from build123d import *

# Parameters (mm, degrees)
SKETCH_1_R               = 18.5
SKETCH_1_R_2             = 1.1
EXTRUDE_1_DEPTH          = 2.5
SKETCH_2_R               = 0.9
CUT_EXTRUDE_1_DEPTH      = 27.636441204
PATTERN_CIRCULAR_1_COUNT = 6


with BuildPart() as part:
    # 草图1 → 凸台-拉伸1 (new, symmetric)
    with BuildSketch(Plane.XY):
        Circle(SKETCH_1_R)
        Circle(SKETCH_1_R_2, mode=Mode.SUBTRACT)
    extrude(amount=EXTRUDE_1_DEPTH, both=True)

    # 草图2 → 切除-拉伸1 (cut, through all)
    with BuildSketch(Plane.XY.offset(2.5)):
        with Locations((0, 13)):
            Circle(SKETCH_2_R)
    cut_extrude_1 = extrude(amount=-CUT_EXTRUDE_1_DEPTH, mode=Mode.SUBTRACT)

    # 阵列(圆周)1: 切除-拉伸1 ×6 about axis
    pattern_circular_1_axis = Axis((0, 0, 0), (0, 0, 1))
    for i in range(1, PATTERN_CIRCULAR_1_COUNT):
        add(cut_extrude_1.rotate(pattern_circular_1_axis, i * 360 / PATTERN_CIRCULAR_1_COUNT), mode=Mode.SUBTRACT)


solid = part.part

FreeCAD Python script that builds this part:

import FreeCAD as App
import Part
import Sketcher

doc = App.newDocument("Part")
params = doc.addObject("Spreadsheet::Sheet", "Params")
for row, (alias, value) in enumerate([
    ("sketch1_diameter", "37 mm"),
    ("sketch1_diameter2", "2.2 mm"),
    ("pad1_length", "5 mm"),
    ("sketch2_diameter", "1.8 mm"),
], start=1):
    params.set(f"A{row}", alias)
    params.set(f"B{row}", "=" + value)
    params.setAlias(f"B{row}", alias)

body = doc.addObject("PartDesign::Body", "Body")

# Sketch on XY plane
sketch1 = body.newObject("Sketcher::SketchObject", "Sketch")
sketch1.AttachmentSupport = (doc.getObject("XY_Plane"), [""])
sketch1.MapMode = "FlatFace"
sketch1.addGeometry([
    Part.Circle(App.Vector(0, 0, 0), App.Vector(0, 0, 1), 18.5),
    Part.Circle(App.Vector(0, 0, 0), App.Vector(0, 0, 1), 1.1),
], False)
sketch1.addConstraint([
    Sketcher.Constraint("Coincident", 0, 3, -1, 1),
    Sketcher.Constraint("Coincident", 1, 3, -1, 1),
    Sketcher.Constraint("Diameter", 0, 37.0),
    Sketcher.Constraint("Diameter", 1, 2.2),
])
sketch1.setExpression("Constraints[2]", "Params.sketch1_diameter")
sketch1.setExpression("Constraints[3]", "Params.sketch1_diameter2")
pad1 = body.newObject("PartDesign::Pad", "Pad")
pad1.Profile = sketch1
pad1.setExpression("Length", "Params.pad1_length")
pad1.Midplane = True

# Sketch on XY plane
sketch2 = body.newObject("Sketcher::SketchObject", "Sketch001")
sketch2.AttachmentSupport = (doc.getObject("XY_Plane"), [""])
sketch2.MapMode = "FlatFace"
sketch2.AttachmentOffset = App.Placement(App.Vector(0, 0, 2.5), App.Rotation())
sketch2.addGeometry(Part.Circle(App.Vector(0, 13, 0), App.Vector(0, 0, 1), 0.9), False)
sketch2.addConstraint([
    Sketcher.Constraint("PointOnObject", 0, 3, -2),
    Sketcher.Constraint("Diameter", 0, 1.8),
    Sketcher.Constraint("DistanceY", -1, 1, 0, 3, 13.0),
])
sketch2.setExpression("Constraints[1]", "Params.sketch2_diameter")
pocket1 = body.newObject("PartDesign::Pocket", "Pocket")
pocket1.Profile = sketch2
pocket1.Type = "ThroughAll"
doc.recompute()

polarpattern = body.newObject("PartDesign::PolarPattern", "PolarPattern")
polarpattern.Originals = [pocket1]
polarpattern.Axis = (doc.getObject("Z_Axis"), [""])
polarpattern.Angle = 360
polarpattern.Occurrences = 6
body.Tip = polarpattern

doc.recompute()
